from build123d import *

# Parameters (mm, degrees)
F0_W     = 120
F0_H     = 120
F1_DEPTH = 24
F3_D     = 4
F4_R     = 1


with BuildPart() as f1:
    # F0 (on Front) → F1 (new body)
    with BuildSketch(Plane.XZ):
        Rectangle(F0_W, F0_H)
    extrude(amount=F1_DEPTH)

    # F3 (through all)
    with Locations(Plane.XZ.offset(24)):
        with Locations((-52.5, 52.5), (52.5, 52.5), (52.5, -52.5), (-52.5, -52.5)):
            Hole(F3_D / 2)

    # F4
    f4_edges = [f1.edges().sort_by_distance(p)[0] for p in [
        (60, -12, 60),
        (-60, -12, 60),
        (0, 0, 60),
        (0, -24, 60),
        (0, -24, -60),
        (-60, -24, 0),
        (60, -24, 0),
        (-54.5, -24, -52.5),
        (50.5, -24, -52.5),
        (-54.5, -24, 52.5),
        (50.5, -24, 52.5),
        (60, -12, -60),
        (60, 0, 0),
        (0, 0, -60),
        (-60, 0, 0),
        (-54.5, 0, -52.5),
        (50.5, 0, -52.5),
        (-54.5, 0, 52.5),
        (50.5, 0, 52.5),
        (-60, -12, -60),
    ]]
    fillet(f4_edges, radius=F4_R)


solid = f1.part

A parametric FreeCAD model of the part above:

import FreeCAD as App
import Part
import Sketcher
Q = App.Units.Quantity


def add_polygon(sketch, points):
    """Adds a closed chain of lines whose ends are joined by coincident constraints."""
    first, n = sketch.GeometryCount, len(points)
    for a, b in zip(points, points[1:] + points[:1]):
        sketch.addGeometry(Part.LineSegment(App.Vector(*a, 0), App.Vector(*b, 0)), False)
    for i in range(n):
        sketch.addConstraint(Sketcher.Constraint("Coincident", first + i, 2, first + (i + 1) % n, 1))

doc = App.newDocument("Part")
body = doc.addObject("PartDesign::Body", "Body")

sketch1 = body.newObject("Sketcher::SketchObject", "Sketch")
sketch1.AttachmentSupport = (doc.getObject("XZ_Plane"), [""])
sketch1.MapMode = "FlatFace"
add_polygon(sketch1, [(-60, 60), (-60, -60), (60, -60), (60, 60)])
sketch1.addConstraint([
    Sketcher.Constraint("Vertical", 0),
    Sketcher.Constraint("Horizontal", 1),
    Sketcher.Constraint("Vertical", 2),
    Sketcher.Constraint("Horizontal", 3),
    Sketcher.Constraint("Symmetric", 0, 2, 2, 2, -1, 1),
    Sketcher.Constraint("Equal", 3, 0),
    Sketcher.Constraint("DistanceX", 1, 1, 1, 2, Q("120 mm")),
])
pad1 = body.newObject("PartDesign::Pad", "Pad")
pad1.Profile = sketch1
pad1.Length = 24

sketch2 = body.newObject("Sketcher::SketchObject", "Sketch001")
sketch2.AttachmentSupport = (doc.getObject("XZ_Plane"), [""])
sketch2.MapMode = "FlatFace"
sketch2.AttachmentOffset = App.Placement(App.Vector(0, 0, 24), App.Rotation())
sketch2.addGeometry([
    Part.Circle(App.Vector(-52.5, 52.5, 0), App.Vector(0, 0, 1), 2),
    Part.Circle(App.Vector(52.5, 52.5, 0), App.Vector(0, 0, 1), 2),
    Part.Circle(App.Vector(52.5, -52.5, 0), App.Vector(0, 0, 1), 2),
    Part.Circle(App.Vector(-52.5, -52.5, 0), App.Vector(0, 0, 1), 2),
], False)
sketch2.addConstraint([
    Sketcher.Constraint("Equal", 0, 1),
    Sketcher.Constraint("Equal", 1, 2),
    Sketcher.Constraint("Equal", 2, 3),
    Sketcher.Constraint("Symmetric", 0, 3, 2, 3, -1, 1),
    Sketcher.Constraint("Symmetric", 1, 3, 3, 3, -1, 1),
    Sketcher.Constraint("Symmetric", 0, 3, 1, 3, -2),
    Sketcher.Constraint("Diameter", 0, Q("4 mm")),
    Sketcher.Constraint("DistanceX", 0, 3, 1, 3, Q("105 mm")),
    Sketcher.Constraint("DistanceY", 2, 3, 1, 3, Q("105 mm")),
])
doc.recompute()
hole = body.newObject("PartDesign::Hole", "Hole")
hole.Profile = sketch2
hole.ThreadType = "None"
hole.Diameter = 4
hole.DepthType = "ThroughAll"
doc.recompute()

fillet = body.newObject("PartDesign::Fillet", "Fillet")
fillet.Base = (hole, ["Edge1"])
fillet.UseAllEdges = True
fillet.Radius = 1

doc.recompute()
